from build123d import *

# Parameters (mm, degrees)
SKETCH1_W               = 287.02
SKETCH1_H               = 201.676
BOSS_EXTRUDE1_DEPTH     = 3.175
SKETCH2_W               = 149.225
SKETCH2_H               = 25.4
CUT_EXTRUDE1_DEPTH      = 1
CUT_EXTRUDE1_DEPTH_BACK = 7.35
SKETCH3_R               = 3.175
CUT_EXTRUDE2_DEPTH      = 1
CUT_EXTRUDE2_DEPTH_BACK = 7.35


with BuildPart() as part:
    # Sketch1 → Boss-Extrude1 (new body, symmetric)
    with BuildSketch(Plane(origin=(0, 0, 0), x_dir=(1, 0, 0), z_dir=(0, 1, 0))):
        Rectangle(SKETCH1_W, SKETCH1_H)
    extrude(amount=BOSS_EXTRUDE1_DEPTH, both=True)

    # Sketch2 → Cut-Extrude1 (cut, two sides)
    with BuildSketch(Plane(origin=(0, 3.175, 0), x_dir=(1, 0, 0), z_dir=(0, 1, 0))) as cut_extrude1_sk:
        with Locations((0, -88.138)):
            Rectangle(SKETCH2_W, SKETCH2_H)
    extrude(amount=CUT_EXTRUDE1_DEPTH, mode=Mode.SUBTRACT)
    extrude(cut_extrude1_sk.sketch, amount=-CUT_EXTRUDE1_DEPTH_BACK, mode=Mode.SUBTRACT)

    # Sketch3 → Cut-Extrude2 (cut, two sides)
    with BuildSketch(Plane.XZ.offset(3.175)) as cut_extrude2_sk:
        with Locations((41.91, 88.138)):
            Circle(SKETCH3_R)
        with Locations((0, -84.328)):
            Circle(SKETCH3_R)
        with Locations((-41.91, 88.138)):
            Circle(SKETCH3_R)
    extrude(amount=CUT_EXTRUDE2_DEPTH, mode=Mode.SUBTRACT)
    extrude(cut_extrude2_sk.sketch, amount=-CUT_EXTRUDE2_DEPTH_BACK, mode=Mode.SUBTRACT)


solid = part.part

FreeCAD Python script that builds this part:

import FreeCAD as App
import Part
import Sketcher
Q = App.Units.Quantity

doc = App.newDocument("Part")
params = doc.addObject("Spreadsheet::Sheet", "Params")
for row, (alias, value) in enumerate([
    ("sketch1_width", "11.3 in"),
    ("sketch1_height", "7.94 in"),
    ("pad1_length", "0.25 in"),
    ("sketch2_height", "1 in"),
    ("sketch2_width", "5.875 in"),
    ("sketch3_diameter", "0.25 in"),
], start=1):
    params.set(f"A{row}", alias)
    params.set(f"B{row}", "=" + value)
    params.setAlias(f"B{row}", alias)

body = doc.addObject("PartDesign::Body", "Body")

# Sketch on XZ plane
sketch1 = body.newObject("Sketcher::SketchObject", "Sketch")
sketch1.AttachmentSupport = (doc.getObject("XZ_Plane"), [""])
sketch1.MapMode = "FlatFace"
sketch1.addGeometry([
    Part.LineSegment(App.Vector(-144, -101, 0), App.Vector(-144, 101, 0)),
    Part.LineSegment(App.Vector(-144, 101, 0), App.Vector(144, 101, 0)),
    Part.LineSegment(App.Vector(144, 101, 0), App.Vector(144, -101, 0)),
    Part.LineSegment(App.Vector(144, -101, 0), App.Vector(-144, -101, 0)),
], False)
sketch1.addConstraint([
    Sketcher.Constraint("Coincident", 0, 2, 1, 1),
    Sketcher.Constraint("Coincident", 1, 2, 2, 1),
    Sketcher.Constraint("Coincident", 2, 2, 3, 1),
    Sketcher.Constraint("Coincident", 3, 2, 0, 1),
    Sketcher.Constraint("Vertical", 0),
    Sketcher.Constraint("Horizontal", 1),
    Sketcher.Constraint("Vertical", 2),
    Sketcher.Constraint("Horizontal", 3),
    Sketcher.Constraint("Symmetric", 0, 2, 2, 2, -1, 1),
    Sketcher.Constraint("DistanceX", 1, 1, 1, 2, Q("11.3 in")),
    Sketcher.Constraint("DistanceY", 0, 1, 0, 2, Q("7.94 in")),
])
sketch1.setExpression("Constraints[9]", "Params.sketch1_width")
sketch1.setExpression("Constraints[10]", "Params.sketch1_height")
pad1 = body.newObject("PartDesign::Pad", "Pad")
pad1.Profile = sketch1
pad1.setExpression("Length", "Params.pad1_length")
pad1.Midplane = True

# Sketch on XZ plane
sketch2 = body.newObject("Sketcher::SketchObject", "Sketch001")
sketch2.AttachmentSupport = (doc.getObject("XZ_Plane"), [""])
sketch2.MapMode = "FlatFace"
sketch2.AttachmentOffset = App.Placement(App.Vector(0, 0, -0.125 * 25.4), App.Rotation())
sketch2.addGeometry([
    Part.LineSegment(App.Vector(-75, 75, 0), App.Vector(-75, 101, 0)),
    Part.LineSegment(App.Vector(-75, 101, 0), App.Vector(75, 101, 0)),
    Part.LineSegment(App.Vector(75, 101, 0), App.Vector(75, 75, 0)),
    Part.LineSegment(App.Vector(75, 75, 0), App.Vector(-75, 75, 0)),
], False)
sketch2.addConstraint([
    Sketcher.Constraint("Coincident", 0, 2, 1, 1),
    Sketcher.Constraint("Coincident", 1, 2, 2, 1),
    Sketcher.Constraint("Coincident", 2, 2, 3, 1),
    Sketcher.Constraint("Coincident", 3, 2, 0, 1),
    Sketcher.Constraint("Vertical", 0),
    Sketcher.Constraint("Horizontal", 1),
    Sketcher.Constraint("Vertical", 2),
    Sketcher.Constraint("Horizontal", 3),
    Sketcher.Constraint("DistanceY", 0, 1, 0, 2, Q("1 in")),
    Sketcher.Constraint("DistanceX", 1, 1, 1, 2, Q("5.875 in")),
    Sketcher.Constraint("DistanceY", -1, 1, 0, 2, Q("3.97 in")),
    Sketcher.Constraint("DistanceX", 0, 2, -1, 1, Q("2.9375 in")),
])
sketch2.setExpression("Constraints[8]", "Params.sketch2_height")
sketch2.setExpression("Constraints[9]", "Params.sketch2_width")
pocket1 = body.newObject("PartDesign::Pocket", "Pocket")
pocket1.Profile = sketch2
pocket1.Type = "ThroughAll"
pocket1.Midplane = True

# Sketch on XZ plane
sketch3 = body.newObject("Sketcher::SketchObject", "Sketch002")
sketch3.AttachmentSupport = (doc.getObject("XZ_Plane"), [""])
sketch3.MapMode = "FlatFace"
sketch3.AttachmentOffset = App.Placement(App.Vector(0, 0, 0.125 * 25.4), App.Rotation())
sketch3.addGeometry([
    Part.Circle(App.Vector(41.9, 88.1, 0), App.Vector(0, 0, 1), 3.2),
    Part.Circle(App.Vector(0, -84.3, 0), App.Vector(0, 0, 1), 3.2),
    Part.Circle(App.Vector(-41.9, 88.1, 0), App.Vector(0, 0, 1), 3.2),
], False)
sketch3.addConstraint([
    Sketcher.Constraint("Equal", 0, 1),
    Sketcher.Constraint("Equal", 1, 2),
    Sketcher.Constraint("Symmetric", 0, 3, 2, 3, -2),
    Sketcher.Constraint("PointOnObject", 1, 3, -2),
    Sketcher.Constraint("Diameter", 0, Q("0.25 in")),
    Sketcher.Constraint("DistanceX", 2, 3, 0, 3, Q("3.3 in")),
    Sketcher.Constraint("DistanceY", -1, 1, 0, 3, Q("3.47 in")),
    Sketcher.Constraint("DistanceY", 1, 3, -1, 1, Q("3.32 in")),
])
sketch3.setExpression("Constraints[4]", "Params.sketch3_diameter")
pocket2 = body.newObject("PartDesign::Pocket", "Pocket001")
pocket2.Profile = sketch3
pocket2.Type = "ThroughAll"
pocket2.Midplane = True

doc.recompute()
